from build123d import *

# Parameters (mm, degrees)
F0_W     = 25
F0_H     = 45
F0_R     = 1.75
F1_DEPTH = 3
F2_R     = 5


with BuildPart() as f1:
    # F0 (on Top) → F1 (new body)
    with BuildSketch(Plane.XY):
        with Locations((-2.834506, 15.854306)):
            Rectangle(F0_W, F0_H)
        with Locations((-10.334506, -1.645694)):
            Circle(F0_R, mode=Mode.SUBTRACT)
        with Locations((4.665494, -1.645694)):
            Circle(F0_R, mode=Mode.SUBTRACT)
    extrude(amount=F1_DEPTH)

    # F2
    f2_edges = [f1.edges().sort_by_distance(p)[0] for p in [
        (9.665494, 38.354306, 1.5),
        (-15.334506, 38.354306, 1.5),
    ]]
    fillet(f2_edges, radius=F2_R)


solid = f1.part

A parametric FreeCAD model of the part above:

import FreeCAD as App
import Part
import Sketcher
Q = App.Units.Quantity


def edges_at(feature, points):
    """Names of the edges that pass closest to the given points."""
    edges = feature.Shape.Edges
    near = lambda p: min(range(len(edges)), key=lambda i: edges[i].distToShape(Part.Vertex(*p))[0])
    return sorted({f"Edge{near(p) + 1}" for p in points})


def add_polygon(sketch, points):
    """Adds a closed chain of lines whose ends are joined by coincident constraints."""
    first, n = sketch.GeometryCount, len(points)
    for a, b in zip(points, points[1:] + points[:1]):
        sketch.addGeometry(Part.LineSegment(App.Vector(*a, 0), App.Vector(*b, 0)), False)
    for i in range(n):
        sketch.addConstraint(Sketcher.Constraint("Coincident", first + i, 2, first + (i + 1) % n, 1))

doc = App.newDocument("Part")
body = doc.addObject("PartDesign::Body", "Body")

sketch1 = doc.addObject("Sketcher::SketchObject", "Sketch")
body.addObject(sketch1)
sketch1.AttachmentSupport = (doc.XY_Plane, [""])
sketch1.MapMode = "FlatFace"
add_polygon(sketch1, [(-15.3, 38.4), (-15.3, -6.6), (9.7, -6.6), (9.7, 38.4)])
sketch1.addGeometry(Part.Circle(App.Vector(-10.3, -1.6, 0), App.Vector(0, 0, 1), 1.8), False)
sketch1.addGeometry(Part.Circle(App.Vector(4.7, -1.6, 0), App.Vector(0, 0, 1), 1.8), False)
sketch1.addConstraint(Sketcher.Constraint("Vertical", 0))
sketch1.addConstraint(Sketcher.Constraint("Horizontal", 1))
sketch1.addConstraint(Sketcher.Constraint("Vertical", 2))
sketch1.addConstraint(Sketcher.Constraint("Horizontal", 3))
sketch1.addConstraint(Sketcher.Constraint("Equal", 4, 5))
sketch1.addConstraint(Sketcher.Constraint("Horizontal", 4, 3, 5, 3))
sketch1.addConstraint(Sketcher.Constraint("Diameter", 4, Q("3.5 mm")))
sketch1.addConstraint(Sketcher.Constraint("DistanceX", 1, 1, 1, 2, Q("25 mm")))
sketch1.addConstraint(Sketcher.Constraint("DistanceY", 0, 2, 0, 1, Q("45 mm")))
sketch1.addConstraint(Sketcher.Constraint("DistanceX", 4, 3, 5, 3, Q("15 mm")))
sketch1.addConstraint(Sketcher.Constraint("DistanceX", 0, 2, 4, 3, Q("5 mm")))
sketch1.addConstraint(Sketcher.Constraint("DistanceY", 0, 2, 4, 3, Q("5 mm")))
sketch1.addConstraint(Sketcher.Constraint("DistanceX", 4, 3, -1, 1, Q("10.334506 mm")))
sketch1.addConstraint(Sketcher.Constraint("DistanceY", 4, 3, -1, 1, Q("1.645694 mm")))
pad1 = doc.addObject("PartDesign::Pad", "Pad")
body.addObject(pad1)
pad1.Profile = sketch1
pad1.Length = 3
doc.recompute()

fillet = doc.addObject("PartDesign::Fillet", "Fillet")
body.addObject(fillet)
fillet.Base = (pad1, edges_at(pad1, [(9.665, 38.354, 1.5), (-15.335, 38.354, 1.5)]))
fillet.Radius = 5

doc.recompute()
